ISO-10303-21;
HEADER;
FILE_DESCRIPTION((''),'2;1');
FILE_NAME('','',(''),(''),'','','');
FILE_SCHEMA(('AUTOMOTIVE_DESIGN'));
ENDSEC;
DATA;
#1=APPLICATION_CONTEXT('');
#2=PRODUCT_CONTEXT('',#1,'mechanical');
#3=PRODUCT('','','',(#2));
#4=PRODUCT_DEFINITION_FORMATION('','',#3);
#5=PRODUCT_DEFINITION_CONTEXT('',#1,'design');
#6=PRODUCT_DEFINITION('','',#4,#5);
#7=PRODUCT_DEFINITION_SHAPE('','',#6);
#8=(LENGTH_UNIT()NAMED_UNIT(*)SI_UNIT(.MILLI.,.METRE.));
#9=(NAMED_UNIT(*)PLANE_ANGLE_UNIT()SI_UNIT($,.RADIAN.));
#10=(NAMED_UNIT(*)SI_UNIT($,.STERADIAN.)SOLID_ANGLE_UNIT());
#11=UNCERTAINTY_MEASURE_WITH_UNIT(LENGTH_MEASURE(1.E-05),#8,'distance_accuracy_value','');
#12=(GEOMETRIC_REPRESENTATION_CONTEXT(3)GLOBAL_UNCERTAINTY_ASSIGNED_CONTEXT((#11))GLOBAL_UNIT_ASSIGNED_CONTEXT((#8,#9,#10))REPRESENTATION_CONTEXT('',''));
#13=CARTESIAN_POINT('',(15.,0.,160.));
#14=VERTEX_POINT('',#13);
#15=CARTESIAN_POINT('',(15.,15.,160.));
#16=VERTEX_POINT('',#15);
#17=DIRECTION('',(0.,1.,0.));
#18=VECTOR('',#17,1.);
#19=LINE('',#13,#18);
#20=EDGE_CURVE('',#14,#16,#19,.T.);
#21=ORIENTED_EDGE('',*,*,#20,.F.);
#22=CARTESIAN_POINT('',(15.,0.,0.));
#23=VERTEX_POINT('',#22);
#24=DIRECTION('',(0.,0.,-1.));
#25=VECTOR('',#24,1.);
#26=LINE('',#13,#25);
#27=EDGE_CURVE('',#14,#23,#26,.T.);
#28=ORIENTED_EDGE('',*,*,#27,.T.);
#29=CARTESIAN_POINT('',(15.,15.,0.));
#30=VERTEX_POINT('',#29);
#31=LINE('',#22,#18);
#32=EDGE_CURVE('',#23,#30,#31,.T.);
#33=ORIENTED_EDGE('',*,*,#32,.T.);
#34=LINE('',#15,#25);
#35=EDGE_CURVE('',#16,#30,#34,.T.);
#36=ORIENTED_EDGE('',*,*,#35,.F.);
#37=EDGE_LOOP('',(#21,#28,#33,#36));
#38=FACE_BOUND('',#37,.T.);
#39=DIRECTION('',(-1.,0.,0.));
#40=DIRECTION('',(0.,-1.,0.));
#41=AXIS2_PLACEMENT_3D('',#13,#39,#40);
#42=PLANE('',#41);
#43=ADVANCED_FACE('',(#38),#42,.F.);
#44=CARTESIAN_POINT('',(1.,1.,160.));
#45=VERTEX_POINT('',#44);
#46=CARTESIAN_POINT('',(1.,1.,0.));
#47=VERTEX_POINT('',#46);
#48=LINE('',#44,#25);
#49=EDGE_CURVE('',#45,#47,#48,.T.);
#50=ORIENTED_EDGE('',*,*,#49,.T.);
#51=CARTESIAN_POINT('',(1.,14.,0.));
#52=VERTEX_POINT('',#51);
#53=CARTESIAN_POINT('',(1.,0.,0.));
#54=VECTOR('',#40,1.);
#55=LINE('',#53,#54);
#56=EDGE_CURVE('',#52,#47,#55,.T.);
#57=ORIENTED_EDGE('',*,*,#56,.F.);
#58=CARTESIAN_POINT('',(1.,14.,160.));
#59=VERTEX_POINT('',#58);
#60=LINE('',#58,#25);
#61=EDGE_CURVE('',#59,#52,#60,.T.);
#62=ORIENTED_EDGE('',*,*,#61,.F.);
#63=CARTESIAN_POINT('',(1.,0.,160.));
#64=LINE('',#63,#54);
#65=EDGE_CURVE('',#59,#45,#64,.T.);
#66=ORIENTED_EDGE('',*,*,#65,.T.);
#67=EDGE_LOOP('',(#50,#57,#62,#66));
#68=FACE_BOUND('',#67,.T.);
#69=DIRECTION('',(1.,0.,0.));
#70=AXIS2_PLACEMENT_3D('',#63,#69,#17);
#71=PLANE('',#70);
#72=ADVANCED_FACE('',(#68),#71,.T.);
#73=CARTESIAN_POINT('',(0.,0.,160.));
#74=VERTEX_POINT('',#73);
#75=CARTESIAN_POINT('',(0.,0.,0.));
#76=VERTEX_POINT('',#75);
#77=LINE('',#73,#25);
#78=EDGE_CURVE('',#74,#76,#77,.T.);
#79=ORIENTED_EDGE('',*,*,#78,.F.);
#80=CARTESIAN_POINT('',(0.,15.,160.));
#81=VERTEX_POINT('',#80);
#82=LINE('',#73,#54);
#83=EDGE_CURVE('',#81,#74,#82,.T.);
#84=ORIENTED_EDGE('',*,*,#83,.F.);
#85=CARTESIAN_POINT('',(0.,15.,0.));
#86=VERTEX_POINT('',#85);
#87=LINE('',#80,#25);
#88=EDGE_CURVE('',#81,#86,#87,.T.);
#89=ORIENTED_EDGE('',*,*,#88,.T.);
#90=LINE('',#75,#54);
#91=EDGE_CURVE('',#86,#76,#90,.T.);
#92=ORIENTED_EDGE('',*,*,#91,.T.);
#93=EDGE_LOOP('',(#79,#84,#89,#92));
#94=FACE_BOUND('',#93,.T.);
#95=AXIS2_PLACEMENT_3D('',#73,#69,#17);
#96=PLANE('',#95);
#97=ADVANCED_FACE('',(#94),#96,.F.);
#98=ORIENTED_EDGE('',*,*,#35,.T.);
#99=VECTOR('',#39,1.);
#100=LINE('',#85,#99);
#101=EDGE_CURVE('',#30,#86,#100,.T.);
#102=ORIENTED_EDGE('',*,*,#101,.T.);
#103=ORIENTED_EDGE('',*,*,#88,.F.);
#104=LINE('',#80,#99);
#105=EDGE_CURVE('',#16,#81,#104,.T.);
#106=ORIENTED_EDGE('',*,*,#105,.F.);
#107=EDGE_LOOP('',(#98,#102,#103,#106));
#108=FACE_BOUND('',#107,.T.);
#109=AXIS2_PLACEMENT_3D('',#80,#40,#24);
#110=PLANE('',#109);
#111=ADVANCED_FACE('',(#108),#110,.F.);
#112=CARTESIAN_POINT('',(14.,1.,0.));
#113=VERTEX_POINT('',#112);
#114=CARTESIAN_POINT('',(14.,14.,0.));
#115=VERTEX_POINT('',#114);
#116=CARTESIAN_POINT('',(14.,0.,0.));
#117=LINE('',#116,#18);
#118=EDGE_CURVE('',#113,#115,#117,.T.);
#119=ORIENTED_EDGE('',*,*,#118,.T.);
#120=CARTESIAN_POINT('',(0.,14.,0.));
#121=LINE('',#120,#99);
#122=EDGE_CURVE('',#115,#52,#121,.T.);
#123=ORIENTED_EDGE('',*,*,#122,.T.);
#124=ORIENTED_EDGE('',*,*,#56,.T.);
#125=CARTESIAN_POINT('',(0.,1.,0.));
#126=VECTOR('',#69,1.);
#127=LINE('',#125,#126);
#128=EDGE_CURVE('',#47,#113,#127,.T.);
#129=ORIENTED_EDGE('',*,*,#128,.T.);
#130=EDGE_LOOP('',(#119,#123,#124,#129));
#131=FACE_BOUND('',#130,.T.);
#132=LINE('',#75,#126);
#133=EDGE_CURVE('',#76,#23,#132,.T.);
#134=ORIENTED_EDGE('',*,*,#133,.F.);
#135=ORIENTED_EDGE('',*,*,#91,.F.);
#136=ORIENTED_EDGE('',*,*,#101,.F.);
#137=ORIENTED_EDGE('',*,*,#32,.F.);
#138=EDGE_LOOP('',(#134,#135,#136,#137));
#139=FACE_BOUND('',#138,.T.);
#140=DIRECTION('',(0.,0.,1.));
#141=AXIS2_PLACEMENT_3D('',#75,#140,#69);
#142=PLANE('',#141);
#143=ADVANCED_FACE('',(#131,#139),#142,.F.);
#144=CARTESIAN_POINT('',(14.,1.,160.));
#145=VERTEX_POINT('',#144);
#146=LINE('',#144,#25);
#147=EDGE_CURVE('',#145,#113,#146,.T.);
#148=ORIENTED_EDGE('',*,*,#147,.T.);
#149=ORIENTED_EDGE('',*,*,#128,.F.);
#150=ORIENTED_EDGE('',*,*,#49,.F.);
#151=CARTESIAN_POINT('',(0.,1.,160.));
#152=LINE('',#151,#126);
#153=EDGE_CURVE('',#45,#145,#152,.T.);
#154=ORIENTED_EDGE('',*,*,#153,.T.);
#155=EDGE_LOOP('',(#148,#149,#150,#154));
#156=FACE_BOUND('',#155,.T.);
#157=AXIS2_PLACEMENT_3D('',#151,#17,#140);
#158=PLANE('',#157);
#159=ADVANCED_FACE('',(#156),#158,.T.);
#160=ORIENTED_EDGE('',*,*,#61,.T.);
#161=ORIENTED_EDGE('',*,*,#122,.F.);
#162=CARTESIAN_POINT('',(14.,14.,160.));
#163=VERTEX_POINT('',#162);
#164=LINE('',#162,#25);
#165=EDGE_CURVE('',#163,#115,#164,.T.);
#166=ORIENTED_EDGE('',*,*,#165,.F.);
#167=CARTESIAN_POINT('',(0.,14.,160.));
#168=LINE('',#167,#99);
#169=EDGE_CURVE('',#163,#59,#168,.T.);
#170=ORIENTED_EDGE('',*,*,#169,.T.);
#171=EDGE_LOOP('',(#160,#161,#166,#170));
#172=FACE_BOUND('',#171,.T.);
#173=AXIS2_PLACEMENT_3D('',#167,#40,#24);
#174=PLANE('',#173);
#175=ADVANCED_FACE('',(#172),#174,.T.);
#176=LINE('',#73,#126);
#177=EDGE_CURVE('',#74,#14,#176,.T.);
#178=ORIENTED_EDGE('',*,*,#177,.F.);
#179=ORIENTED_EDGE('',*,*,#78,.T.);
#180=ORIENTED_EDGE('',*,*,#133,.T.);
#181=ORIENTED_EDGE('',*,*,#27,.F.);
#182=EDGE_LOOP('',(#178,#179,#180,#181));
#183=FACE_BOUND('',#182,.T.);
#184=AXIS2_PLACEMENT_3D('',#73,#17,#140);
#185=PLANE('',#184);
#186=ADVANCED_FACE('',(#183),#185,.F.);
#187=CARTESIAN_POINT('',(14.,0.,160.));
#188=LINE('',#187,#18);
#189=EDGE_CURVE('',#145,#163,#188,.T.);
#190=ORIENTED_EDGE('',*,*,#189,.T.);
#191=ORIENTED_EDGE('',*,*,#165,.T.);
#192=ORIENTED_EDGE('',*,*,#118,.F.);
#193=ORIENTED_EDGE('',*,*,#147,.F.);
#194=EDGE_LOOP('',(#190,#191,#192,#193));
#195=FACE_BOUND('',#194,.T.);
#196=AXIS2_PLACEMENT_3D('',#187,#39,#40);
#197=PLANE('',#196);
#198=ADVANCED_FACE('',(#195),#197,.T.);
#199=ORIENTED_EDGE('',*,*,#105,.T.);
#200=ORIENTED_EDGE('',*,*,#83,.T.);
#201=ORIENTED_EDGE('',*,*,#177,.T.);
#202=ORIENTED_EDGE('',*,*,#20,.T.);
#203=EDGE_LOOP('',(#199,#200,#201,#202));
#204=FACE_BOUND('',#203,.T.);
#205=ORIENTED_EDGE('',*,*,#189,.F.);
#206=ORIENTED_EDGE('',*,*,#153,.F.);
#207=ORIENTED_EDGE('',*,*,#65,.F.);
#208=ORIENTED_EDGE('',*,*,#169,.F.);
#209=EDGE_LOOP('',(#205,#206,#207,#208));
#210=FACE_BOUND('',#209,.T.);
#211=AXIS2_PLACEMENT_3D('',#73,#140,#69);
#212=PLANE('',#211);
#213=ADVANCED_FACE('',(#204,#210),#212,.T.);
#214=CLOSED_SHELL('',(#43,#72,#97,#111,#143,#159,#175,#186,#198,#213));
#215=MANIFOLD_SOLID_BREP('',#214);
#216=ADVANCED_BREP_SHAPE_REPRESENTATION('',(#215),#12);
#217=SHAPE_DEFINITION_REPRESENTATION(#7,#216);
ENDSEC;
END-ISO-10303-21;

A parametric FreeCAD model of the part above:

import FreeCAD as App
import Part
import Sketcher

V = App.Vector


def add_polygon(sketch, points):
    """Adds a closed chain of lines whose ends are joined by coincident constraints."""
    first, n = sketch.GeometryCount, len(points)
    for a, b in zip(points, points[1:] + points[:1]):
        sketch.addGeometry(Part.LineSegment(App.Vector(*a, 0), App.Vector(*b, 0)), False)
    for i in range(n):
        sketch.addConstraint(Sketcher.Constraint("Coincident", first + i, 2, first + (i + 1) % n, 1))

doc = App.newDocument("Part")
body = doc.addObject("PartDesign::Body", "Body")

# Sketch on XY plane
sketch1 = doc.addObject("Sketcher::SketchObject", "Sketch")
body.addObject(sketch1)
sketch1.AttachmentSupport = (doc.XY_Plane, [""])
sketch1.MapMode = "FlatFace"
add_polygon(sketch1, [(0, 15), (0, 0), (15, 0), (15, 15)])  # lines 0-3
add_polygon(sketch1, [(14, 1), (1, 1), (1, 14), (14, 14)])  # lines 4-7
sketch1.addConstraint(Sketcher.Constraint("Vertical", 0))
sketch1.addConstraint(Sketcher.Constraint("Horizontal", 1))
sketch1.addConstraint(Sketcher.Constraint("Vertical", 2))
sketch1.addConstraint(Sketcher.Constraint("Horizontal", 3))
sketch1.addConstraint(Sketcher.Constraint("Horizontal", 4))
sketch1.addConstraint(Sketcher.Constraint("Vertical", 5))
sketch1.addConstraint(Sketcher.Constraint("Horizontal", 6))
sketch1.addConstraint(Sketcher.Constraint("Vertical", 7))
sketch1.addConstraint(Sketcher.Constraint("Coincident", 0, 2, -1, 1))
sketch1.addConstraint(Sketcher.Constraint("Equal", 3, 0))
sketch1.addConstraint(Sketcher.Constraint("Equal", 6, 5))
sketch1.addConstraint(Sketcher.Constraint("DistanceX", 1, 1, 1, 2, 15.0))
sketch1.addConstraint(Sketcher.Constraint("DistanceX", 4, 2, 4, 1, 13.0))
sketch1.addConstraint(Sketcher.Constraint("DistanceX", -1, 1, 4, 2, 1.0))
sketch1.addConstraint(Sketcher.Constraint("DistanceY", -1, 1, 4, 2, 1.0))
pad1 = doc.addObject("PartDesign::Pad", "Pad")
body.addObject(pad1)
pad1.Profile = sketch1
pad1.Length = 160

doc.recompute()
